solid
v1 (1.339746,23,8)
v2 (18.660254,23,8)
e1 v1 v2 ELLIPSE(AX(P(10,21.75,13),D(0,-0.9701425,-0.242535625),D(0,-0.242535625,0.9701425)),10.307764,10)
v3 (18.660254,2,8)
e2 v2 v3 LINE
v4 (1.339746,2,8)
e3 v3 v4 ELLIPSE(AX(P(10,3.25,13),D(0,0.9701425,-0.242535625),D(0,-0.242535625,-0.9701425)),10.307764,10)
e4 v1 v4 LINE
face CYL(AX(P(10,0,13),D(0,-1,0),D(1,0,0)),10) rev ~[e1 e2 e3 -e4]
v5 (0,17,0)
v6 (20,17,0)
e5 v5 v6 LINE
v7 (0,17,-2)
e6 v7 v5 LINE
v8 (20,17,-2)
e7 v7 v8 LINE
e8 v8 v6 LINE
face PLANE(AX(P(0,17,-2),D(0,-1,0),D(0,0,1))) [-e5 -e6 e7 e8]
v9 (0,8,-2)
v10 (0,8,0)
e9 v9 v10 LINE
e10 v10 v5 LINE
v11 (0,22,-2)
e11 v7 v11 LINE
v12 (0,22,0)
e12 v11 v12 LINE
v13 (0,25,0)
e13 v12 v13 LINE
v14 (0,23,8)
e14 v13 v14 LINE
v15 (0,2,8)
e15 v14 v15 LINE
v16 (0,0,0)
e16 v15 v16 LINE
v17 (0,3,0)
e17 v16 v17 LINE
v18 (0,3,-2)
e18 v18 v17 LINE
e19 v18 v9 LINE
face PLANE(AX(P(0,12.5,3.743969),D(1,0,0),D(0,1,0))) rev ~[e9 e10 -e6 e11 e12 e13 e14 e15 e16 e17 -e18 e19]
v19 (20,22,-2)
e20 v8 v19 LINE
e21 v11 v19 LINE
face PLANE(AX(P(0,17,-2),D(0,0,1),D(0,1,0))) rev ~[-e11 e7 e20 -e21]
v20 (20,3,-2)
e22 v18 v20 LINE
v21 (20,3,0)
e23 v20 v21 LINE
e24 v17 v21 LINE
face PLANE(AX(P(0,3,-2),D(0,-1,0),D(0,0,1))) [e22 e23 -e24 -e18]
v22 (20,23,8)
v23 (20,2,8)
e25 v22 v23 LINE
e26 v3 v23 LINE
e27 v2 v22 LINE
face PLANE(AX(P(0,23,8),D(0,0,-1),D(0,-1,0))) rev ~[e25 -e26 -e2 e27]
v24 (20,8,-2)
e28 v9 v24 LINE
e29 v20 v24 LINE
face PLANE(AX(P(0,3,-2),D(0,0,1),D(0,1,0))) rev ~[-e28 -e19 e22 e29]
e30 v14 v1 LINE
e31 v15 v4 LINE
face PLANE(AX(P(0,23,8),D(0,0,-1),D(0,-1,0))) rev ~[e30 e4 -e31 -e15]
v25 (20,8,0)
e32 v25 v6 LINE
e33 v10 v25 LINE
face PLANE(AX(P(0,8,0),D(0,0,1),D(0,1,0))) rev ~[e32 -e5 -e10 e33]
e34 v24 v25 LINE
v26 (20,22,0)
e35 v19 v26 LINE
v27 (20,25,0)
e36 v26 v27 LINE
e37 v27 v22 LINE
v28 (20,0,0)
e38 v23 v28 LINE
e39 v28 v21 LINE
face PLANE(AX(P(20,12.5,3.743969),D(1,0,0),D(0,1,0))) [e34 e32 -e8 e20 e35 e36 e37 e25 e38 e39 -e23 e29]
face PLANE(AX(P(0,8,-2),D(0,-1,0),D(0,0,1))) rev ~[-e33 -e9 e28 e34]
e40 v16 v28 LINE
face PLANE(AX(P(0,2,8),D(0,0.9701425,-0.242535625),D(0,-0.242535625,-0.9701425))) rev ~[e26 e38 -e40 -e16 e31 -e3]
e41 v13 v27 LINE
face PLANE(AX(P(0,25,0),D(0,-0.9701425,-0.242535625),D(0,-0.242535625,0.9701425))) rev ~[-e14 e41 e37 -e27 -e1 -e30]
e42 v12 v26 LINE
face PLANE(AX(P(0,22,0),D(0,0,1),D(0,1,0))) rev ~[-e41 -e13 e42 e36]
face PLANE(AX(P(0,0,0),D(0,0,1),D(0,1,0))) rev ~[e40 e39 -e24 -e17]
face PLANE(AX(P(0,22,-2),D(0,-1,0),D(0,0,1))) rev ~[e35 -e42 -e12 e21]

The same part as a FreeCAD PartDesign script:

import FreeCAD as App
import Part
import Sketcher

V = App.Vector
Q = App.Units.Quantity

doc = App.newDocument("Part")
body = doc.addObject("PartDesign::Body", "Body")

# Sketch on YZ plane
sketch1 = body.newObject("Sketcher::SketchObject", "Sketch")
sketch1.AttachmentSupport = (doc.getObject("YZ_Plane"), [""])
sketch1.MapMode = "FlatFace"
sketch1.addGeometry([
    Part.LineSegment(V(2, 8, 0), V(0, 0, 0)),  # 0
    Part.LineSegment(V(0, 0, 0), V(3, 0, 0)),  # 1
    Part.LineSegment(V(3, 0, 0), V(3, -2, 0)),  # 2
    Part.LineSegment(V(3, -2, 0), V(8, -2, 0)),  # 3
    Part.LineSegment(V(8, -2, 0), V(8, 0, 0)),  # 4
    Part.LineSegment(V(8, 0, 0), V(17, 0, 0)),  # 5
    Part.LineSegment(V(17, 0, 0), V(17, -2, 0)),  # 6
    Part.LineSegment(V(17, -2, 0), V(22, -2, 0)),  # 7
    Part.LineSegment(V(22, -2, 0), V(22, 0, 0)),  # 8
    Part.LineSegment(V(22, 0, 0), V(25, 0, 0)),  # 9
    Part.LineSegment(V(25, 0, 0), V(23, 8, 0)),  # 10
    Part.LineSegment(V(23, 8, 0), V(2, 8, 0)),  # 11
], False)
sketch1.addConstraint([
    Sketcher.Constraint("Coincident", 0, 2, 1, 1),
    Sketcher.Constraint("Coincident", 1, 2, 2, 1),
    Sketcher.Constraint("Coincident", 2, 2, 3, 1),
    Sketcher.Constraint("Coincident", 3, 2, 4, 1),
    Sketcher.Constraint("Coincident", 4, 2, 5, 1),
    Sketcher.Constraint("Coincident", 5, 2, 6, 1),
    Sketcher.Constraint("Coincident", 6, 2, 7, 1),
    Sketcher.Constraint("Coincident", 7, 2, 8, 1),
    Sketcher.Constraint("Coincident", 8, 2, 9, 1),
    Sketcher.Constraint("Coincident", 9, 2, 10, 1),
    Sketcher.Constraint("Coincident", 10, 2, 11, 1),
    Sketcher.Constraint("Coincident", 11, 2, 0, 1),
    Sketcher.Constraint("Horizontal", 1),
    Sketcher.Constraint("Vertical", 2),
    Sketcher.Constraint("Horizontal", 3),
    Sketcher.Constraint("Vertical", 4),
    Sketcher.Constraint("Horizontal", 5),
    Sketcher.Constraint("Vertical", 6),
    Sketcher.Constraint("Horizontal", 7),
    Sketcher.Constraint("Vertical", 8),
    Sketcher.Constraint("Horizontal", 9),
    Sketcher.Constraint("Horizontal", 11),
    Sketcher.Constraint("Coincident", 0, 2, -1, 1),
    Sketcher.Constraint("PointOnObject", 4, 2, -1),
    Sketcher.Constraint("PointOnObject", 8, 2, -1),
    Sketcher.Constraint("Horizontal", 3, 2, 6, 2),
    Sketcher.Constraint("Equal", 3, 7),
    Sketcher.Constraint("Equal", 1, 9),
    Sketcher.Constraint("Equal", 0, 10),
    Sketcher.Constraint("DistanceX", 1, 1, 1, 2, Q("3 mm")),
    Sketcher.Constraint("DistanceX", 3, 1, 3, 2, Q("5 mm")),
    Sketcher.Constraint("DistanceX", 5, 1, 5, 2, Q("9 mm")),
    Sketcher.Constraint("DistanceX", 11, 2, 11, 1, Q("21 mm")),
    Sketcher.Constraint("DistanceY", 2, 2, 2, 1, Q("2 mm")),
    Sketcher.Constraint("DistanceY", -1, 1, 10, 2, Q("8 mm")),
])
pad1 = body.newObject("PartDesign::Pad", "Pad")
pad1.Profile = sketch1
pad1.Length = 20

# Sketch on XZ plane
sketch2 = body.newObject("Sketcher::SketchObject", "Sketch001")
sketch2.AttachmentSupport = (doc.getObject("XZ_Plane"), [""])
sketch2.MapMode = "FlatFace"
sketch2.addGeometry(Part.Circle(V(10, 13, 0), V(0, 0, 1), 10), False)
sketch2.addConstraint([
    Sketcher.Constraint("Diameter", 0, Q("20 mm")),
    Sketcher.Constraint("DistanceX", -1, 1, 0, 3, Q("10 mm")),
    Sketcher.Constraint("DistanceY", -1, 1, 0, 3, Q("13 mm")),
])
pocket1 = body.newObject("PartDesign::Pocket", "Pocket")
pocket1.Profile = sketch2
pocket1.Length = 25.4

doc.recompute()
